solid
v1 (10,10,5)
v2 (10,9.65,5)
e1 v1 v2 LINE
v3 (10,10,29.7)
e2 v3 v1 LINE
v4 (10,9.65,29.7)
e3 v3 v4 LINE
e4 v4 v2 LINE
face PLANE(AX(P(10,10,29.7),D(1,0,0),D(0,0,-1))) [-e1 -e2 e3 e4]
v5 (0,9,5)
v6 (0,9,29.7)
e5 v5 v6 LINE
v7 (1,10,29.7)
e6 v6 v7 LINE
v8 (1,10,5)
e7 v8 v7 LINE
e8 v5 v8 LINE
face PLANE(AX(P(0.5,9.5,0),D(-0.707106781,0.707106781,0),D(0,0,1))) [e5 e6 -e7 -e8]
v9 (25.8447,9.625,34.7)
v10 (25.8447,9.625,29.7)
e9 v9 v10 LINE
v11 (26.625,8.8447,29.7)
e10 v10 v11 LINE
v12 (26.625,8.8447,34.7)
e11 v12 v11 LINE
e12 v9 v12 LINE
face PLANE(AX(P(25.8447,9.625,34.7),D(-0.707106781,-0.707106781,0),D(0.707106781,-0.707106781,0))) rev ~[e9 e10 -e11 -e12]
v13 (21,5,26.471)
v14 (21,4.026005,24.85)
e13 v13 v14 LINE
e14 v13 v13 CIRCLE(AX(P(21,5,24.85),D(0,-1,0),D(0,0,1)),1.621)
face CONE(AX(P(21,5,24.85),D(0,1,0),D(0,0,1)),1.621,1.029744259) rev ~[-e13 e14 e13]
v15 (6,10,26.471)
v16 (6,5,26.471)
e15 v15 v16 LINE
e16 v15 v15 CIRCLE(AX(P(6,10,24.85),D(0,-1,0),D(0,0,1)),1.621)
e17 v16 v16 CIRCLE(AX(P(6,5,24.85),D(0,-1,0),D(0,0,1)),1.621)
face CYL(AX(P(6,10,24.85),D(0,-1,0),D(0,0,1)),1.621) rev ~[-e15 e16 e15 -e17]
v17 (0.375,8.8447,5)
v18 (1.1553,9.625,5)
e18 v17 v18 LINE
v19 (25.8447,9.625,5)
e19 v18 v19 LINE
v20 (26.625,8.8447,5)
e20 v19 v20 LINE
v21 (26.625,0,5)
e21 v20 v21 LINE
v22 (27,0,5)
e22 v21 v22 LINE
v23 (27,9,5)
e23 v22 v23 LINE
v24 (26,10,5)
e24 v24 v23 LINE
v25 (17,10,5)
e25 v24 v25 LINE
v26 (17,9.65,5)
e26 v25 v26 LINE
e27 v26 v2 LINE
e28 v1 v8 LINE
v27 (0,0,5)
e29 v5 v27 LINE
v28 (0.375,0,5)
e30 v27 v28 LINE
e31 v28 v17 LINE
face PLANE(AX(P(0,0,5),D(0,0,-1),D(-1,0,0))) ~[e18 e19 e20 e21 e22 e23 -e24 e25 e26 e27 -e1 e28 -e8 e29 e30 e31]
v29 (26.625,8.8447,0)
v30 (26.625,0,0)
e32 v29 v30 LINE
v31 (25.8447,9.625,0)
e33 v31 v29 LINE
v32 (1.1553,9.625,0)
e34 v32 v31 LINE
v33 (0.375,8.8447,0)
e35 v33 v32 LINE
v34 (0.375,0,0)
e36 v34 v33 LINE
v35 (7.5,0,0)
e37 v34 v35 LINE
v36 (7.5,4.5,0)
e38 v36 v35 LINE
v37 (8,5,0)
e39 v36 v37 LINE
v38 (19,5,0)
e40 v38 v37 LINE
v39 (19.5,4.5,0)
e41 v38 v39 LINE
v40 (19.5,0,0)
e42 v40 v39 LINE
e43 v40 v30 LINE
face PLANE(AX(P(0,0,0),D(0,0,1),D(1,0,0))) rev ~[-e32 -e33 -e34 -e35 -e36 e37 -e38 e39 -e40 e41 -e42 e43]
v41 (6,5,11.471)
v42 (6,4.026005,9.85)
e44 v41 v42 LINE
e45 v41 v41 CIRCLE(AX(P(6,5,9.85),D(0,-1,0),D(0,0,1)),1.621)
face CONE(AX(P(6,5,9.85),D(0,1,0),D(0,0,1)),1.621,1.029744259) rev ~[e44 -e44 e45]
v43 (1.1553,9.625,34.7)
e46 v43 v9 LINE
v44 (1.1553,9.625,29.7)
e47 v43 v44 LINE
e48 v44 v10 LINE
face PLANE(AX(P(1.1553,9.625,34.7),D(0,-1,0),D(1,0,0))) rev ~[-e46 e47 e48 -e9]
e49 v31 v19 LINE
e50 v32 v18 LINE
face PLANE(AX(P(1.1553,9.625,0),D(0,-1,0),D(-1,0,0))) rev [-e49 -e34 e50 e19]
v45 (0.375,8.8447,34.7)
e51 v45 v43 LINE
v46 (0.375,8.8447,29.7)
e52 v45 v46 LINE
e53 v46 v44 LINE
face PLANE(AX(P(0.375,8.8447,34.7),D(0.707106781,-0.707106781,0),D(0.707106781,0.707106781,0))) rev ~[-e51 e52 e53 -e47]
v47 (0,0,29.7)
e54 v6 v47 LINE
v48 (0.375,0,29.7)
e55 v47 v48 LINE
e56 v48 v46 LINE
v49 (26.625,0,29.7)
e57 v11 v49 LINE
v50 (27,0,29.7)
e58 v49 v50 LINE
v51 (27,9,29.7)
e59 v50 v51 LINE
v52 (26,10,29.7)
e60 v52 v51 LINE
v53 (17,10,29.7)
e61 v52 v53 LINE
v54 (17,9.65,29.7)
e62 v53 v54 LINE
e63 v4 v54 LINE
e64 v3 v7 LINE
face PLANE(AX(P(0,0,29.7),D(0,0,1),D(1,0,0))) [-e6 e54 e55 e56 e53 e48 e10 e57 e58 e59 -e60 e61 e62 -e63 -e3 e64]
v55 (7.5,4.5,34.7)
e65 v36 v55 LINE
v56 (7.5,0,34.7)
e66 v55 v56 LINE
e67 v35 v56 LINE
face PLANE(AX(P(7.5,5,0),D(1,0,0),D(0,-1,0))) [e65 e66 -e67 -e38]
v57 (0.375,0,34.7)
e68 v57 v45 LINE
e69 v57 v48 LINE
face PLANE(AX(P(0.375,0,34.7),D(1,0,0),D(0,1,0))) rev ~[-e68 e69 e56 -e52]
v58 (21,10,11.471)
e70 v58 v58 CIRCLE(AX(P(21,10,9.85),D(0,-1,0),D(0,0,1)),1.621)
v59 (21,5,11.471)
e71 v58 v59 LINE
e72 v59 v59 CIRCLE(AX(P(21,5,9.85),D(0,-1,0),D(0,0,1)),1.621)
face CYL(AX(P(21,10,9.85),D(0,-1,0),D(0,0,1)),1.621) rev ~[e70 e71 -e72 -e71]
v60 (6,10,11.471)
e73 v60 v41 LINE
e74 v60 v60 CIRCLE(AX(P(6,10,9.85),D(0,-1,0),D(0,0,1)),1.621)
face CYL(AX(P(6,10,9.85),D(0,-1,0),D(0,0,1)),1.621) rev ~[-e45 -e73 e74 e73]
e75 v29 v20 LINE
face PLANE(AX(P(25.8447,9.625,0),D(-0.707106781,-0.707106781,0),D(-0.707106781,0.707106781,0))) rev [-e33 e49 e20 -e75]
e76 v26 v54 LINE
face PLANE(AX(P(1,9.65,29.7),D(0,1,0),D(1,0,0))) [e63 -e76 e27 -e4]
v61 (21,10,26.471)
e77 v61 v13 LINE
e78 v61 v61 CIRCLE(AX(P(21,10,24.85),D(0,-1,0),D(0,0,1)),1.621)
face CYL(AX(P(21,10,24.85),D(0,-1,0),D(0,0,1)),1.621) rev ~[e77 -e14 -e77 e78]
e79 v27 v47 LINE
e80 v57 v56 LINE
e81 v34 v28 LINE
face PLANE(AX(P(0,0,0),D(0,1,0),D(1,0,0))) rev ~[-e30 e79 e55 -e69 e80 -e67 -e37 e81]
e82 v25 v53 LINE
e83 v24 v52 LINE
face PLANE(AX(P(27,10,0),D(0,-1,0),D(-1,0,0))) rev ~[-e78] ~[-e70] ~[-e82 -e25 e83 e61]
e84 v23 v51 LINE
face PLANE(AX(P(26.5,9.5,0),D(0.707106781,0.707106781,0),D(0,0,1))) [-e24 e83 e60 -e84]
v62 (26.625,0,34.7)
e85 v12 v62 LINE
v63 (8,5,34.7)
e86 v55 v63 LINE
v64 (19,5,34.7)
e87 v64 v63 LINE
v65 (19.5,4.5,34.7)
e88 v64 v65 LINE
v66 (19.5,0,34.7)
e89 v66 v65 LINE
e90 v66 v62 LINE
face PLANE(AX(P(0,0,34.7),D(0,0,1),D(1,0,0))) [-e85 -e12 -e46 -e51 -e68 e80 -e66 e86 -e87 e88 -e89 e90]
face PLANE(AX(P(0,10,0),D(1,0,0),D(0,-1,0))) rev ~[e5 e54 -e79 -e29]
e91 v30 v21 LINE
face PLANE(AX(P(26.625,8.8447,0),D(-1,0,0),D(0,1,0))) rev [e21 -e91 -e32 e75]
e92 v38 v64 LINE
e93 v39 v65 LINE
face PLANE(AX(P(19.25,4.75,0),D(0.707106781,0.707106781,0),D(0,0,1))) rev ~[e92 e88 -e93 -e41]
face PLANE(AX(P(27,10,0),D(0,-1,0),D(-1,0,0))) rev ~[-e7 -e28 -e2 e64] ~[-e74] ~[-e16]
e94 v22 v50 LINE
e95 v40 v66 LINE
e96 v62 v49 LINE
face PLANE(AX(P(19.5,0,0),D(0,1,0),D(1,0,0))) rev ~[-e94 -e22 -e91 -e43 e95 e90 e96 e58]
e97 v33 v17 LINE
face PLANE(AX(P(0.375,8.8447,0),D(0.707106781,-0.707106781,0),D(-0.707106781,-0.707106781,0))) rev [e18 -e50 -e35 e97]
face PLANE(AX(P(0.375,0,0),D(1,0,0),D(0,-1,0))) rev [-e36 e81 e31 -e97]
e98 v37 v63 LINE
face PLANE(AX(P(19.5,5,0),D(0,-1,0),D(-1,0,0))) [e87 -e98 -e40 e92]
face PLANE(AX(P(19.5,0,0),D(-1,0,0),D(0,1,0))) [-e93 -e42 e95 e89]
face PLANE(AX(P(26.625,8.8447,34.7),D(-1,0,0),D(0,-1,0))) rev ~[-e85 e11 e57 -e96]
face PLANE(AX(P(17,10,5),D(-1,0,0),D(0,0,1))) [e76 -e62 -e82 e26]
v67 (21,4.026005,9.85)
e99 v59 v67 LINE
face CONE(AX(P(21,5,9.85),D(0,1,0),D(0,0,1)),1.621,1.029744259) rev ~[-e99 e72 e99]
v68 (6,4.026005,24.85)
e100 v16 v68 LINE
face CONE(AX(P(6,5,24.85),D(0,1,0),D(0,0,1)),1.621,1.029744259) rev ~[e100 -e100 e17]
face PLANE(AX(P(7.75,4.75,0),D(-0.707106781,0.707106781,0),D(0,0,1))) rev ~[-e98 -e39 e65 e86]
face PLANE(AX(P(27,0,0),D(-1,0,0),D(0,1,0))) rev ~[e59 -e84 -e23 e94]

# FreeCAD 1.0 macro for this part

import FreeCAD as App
import Part
import Sketcher
from FreeCAD import Vector
Q = App.Units.Quantity


def edges_at(feature, points):
    """Names of the edges that pass closest to the given points."""
    edges = feature.Shape.Edges
    near = lambda p: min(range(len(edges)), key=lambda i: edges[i].distToShape(Part.Vertex(*p))[0])
    return sorted({f"Edge{near(p) + 1}" for p in points})

doc = App.newDocument("Part")
body = doc.addObject("PartDesign::Body", "Body")

sketch1 = body.newObject("Sketcher::SketchObject", "Sketch")
sketch1.AttachmentSupport = (doc.getObject("XY_Plane"), [""])
sketch1.MapMode = "FlatFace"
sketch1.addGeometry(Part.LineSegment(Vector(0, 10, 0), Vector(0, 0, 0)), False)
sketch1.addGeometry(Part.LineSegment(Vector(0, 0, 0), Vector(8, 0, 0)), False)
sketch1.addGeometry(Part.LineSegment(Vector(8, 0, 0), Vector(8, 5, 0)), False)
sketch1.addGeometry(Part.LineSegment(Vector(8, 5, 0), Vector(20, 5, 0)), False)
sketch1.addGeometry(Part.LineSegment(Vector(20, 5, 0), Vector(20, 0, 0)), False)
sketch1.addGeometry(Part.LineSegment(Vector(20, 0, 0), Vector(27, 0, 0)), False)
sketch1.addGeometry(Part.LineSegment(Vector(27, 0, 0), Vector(27, 10, 0)), False)
sketch1.addGeometry(Part.LineSegment(Vector(27, 10, 0), Vector(0, 10, 0)), False)
sketch1.addConstraint(Sketcher.Constraint("Coincident", 0, 2, 1, 1))
sketch1.addConstraint(Sketcher.Constraint("Coincident", 1, 2, 2, 1))
sketch1.addConstraint(Sketcher.Constraint("Coincident", 2, 2, 3, 1))
sketch1.addConstraint(Sketcher.Constraint("Coincident", 3, 2, 4, 1))
sketch1.addConstraint(Sketcher.Constraint("Coincident", 4, 2, 5, 1))
sketch1.addConstraint(Sketcher.Constraint("Coincident", 5, 2, 6, 1))
sketch1.addConstraint(Sketcher.Constraint("Coincident", 6, 2, 7, 1))
sketch1.addConstraint(Sketcher.Constraint("Coincident", 7, 2, 0, 1))
sketch1.addConstraint(Sketcher.Constraint("Vertical", 0))
sketch1.addConstraint(Sketcher.Constraint("Horizontal", 1))
sketch1.addConstraint(Sketcher.Constraint("Vertical", 2))
sketch1.addConstraint(Sketcher.Constraint("Horizontal", 3))
sketch1.addConstraint(Sketcher.Constraint("Vertical", 4))
sketch1.addConstraint(Sketcher.Constraint("Horizontal", 5))
sketch1.addConstraint(Sketcher.Constraint("Vertical", 6))
sketch1.addConstraint(Sketcher.Constraint("Horizontal", 7))
sketch1.addConstraint(Sketcher.Constraint("Coincident", 0, 2, -1, 1))
sketch1.addConstraint(Sketcher.Constraint("PointOnObject", 4, 2, -1))
sketch1.addConstraint(Sketcher.Constraint("Equal", 1, 5))
sketch1.addConstraint(Sketcher.Constraint("DistanceX", 3, 1, 3, 2, Q("12 mm")))
sketch1.addConstraint(Sketcher.Constraint("DistanceX", 7, 2, 7, 1, Q("27 mm")))
sketch1.addConstraint(Sketcher.Constraint("DistanceY", 0, 2, 0, 1, Q("10 mm")))
sketch1.addConstraint(Sketcher.Constraint("DistanceY", 2, 1, 2, 2, Q("5 mm")))
pad1 = body.newObject("PartDesign::Pad", "Pad")
pad1.Profile = sketch1
pad1.Length = 34.7
doc.recompute()

chamfer = body.newObject("PartDesign::Chamfer", "Chamfer")
chamfer.Base = (pad1, edges_at(pad1, [(27, 10, 17.35), (0, 10, 17.35)]))
chamfer.Size = 1
doc.recompute()

chamfer2 = body.newObject("PartDesign::Chamfer", "Chamfer001")
chamfer2.Base = (chamfer, edges_at(chamfer, [(7.5, 5, 17.35), (19.5, 5, 17.35)]))
chamfer2.Size = 0.5

sketch2 = body.newObject("Sketcher::SketchObject", "Sketch001")
sketch2.AttachmentSupport = (doc.getObject("XZ_Plane"), [""])
sketch2.MapMode = "FlatFace"
sketch2.AttachmentOffset = App.Placement(Vector(0, 0, -10), App.Rotation())
sketch2.addGeometry(Part.Circle(Vector(21, 9.8, 0), Vector(0, 0, 1), 1.6), False)
sketch2.addGeometry(Part.Circle(Vector(21, 24.9, 0), Vector(0, 0, 1), 1.6), False)
sketch2.addGeometry(Part.Circle(Vector(6, 24.9, 0), Vector(0, 0, 1), 1.6), False)
sketch2.addGeometry(Part.Circle(Vector(6, 9.8, 0), Vector(0, 0, 1), 1.6), False)
sketch2.addConstraint(Sketcher.Constraint("Equal", 0, 1))
sketch2.addConstraint(Sketcher.Constraint("Equal", 1, 2))
sketch2.addConstraint(Sketcher.Constraint("Equal", 2, 3))
sketch2.addConstraint(Sketcher.Constraint("Horizontal", 1, 3, 2, 3))
sketch2.addConstraint(Sketcher.Constraint("Horizontal", 0, 3, 3, 3))
sketch2.addConstraint(Sketcher.Constraint("Vertical", 0, 3, 1, 3))
sketch2.addConstraint(Sketcher.Constraint("Vertical", 2, 3, 3, 3))
sketch2.addConstraint(Sketcher.Constraint("Diameter", 0, Q("3.242 mm")))
sketch2.addConstraint(Sketcher.Constraint("DistanceX", -1, 1, 0, 3, Q("21 mm")))
sketch2.addConstraint(Sketcher.Constraint("DistanceX", -1, 1, 2, 3, Q("6 mm")))
sketch2.addConstraint(Sketcher.Constraint("DistanceY", 0, 3, 1, 3, Q("15 mm")))
sketch2.addConstraint(Sketcher.Constraint("DistanceY", -1, 1, 0, 3, Q("9.85 mm")))
doc.recompute()
hole = body.newObject("PartDesign::Hole", "Hole")
hole.Profile = sketch2
hole.ThreadType = "None"
hole.Diameter = 3.242
hole.DepthType = "Dimension"
hole.Depth = 5
hole.DrillPoint = "Angled"
hole.DrillPointAngle = 118
hole.Reversed = True

sketch3 = body.newObject("Sketcher::SketchObject", "Sketch002")
sketch3.AttachmentSupport = (doc.getObject("XY_Plane"), [""])
sketch3.MapMode = "FlatFace"
sketch3.AttachmentOffset = App.Placement(Vector(0, 0, 34.7), App.Rotation())
sketch3.addGeometry(Part.LineSegment(Vector(1, 10, 0), Vector(0, 9, 0)), False)
sketch3.addGeometry(Part.LineSegment(Vector(0, 9, 0), Vector(0, 0, 0)), False)
sketch3.addGeometry(Part.LineSegment(Vector(0, 0, 0), Vector(0.38, 0, 0)), False)
sketch3.addGeometry(Part.LineSegment(Vector(0.38, 0, 0), Vector(0.38, 8.84, 0)), False)
sketch3.addGeometry(Part.LineSegment(Vector(0.38, 8.84, 0), Vector(1.16, 9.62, 0)), False)
sketch3.addGeometry(Part.LineSegment(Vector(1.16, 9.62, 0), Vector(25.84, 9.62, 0)), False)
sketch3.addGeometry(Part.LineSegment(Vector(25.84, 9.62, 0), Vector(26.62, 8.84, 0)), False)
sketch3.addGeometry(Part.LineSegment(Vector(26.62, 8.84, 0), Vector(26.62, 0, 0)), False)
sketch3.addGeometry(Part.LineSegment(Vector(26.62, 0, 0), Vector(27, 0, 0)), False)
sketch3.addGeometry(Part.LineSegment(Vector(27, 0, 0), Vector(27, 9, 0)), False)
sketch3.addGeometry(Part.LineSegment(Vector(27, 9, 0), Vector(26, 10, 0)), False)
sketch3.addGeometry(Part.LineSegment(Vector(26, 10, 0), Vector(1, 10, 0)), False)
sketch3.addConstraint(Sketcher.Constraint("Coincident", 0, 2, 1, 1))
sketch3.addConstraint(Sketcher.Constraint("Coincident", 1, 2, 2, 1))
sketch3.addConstraint(Sketcher.Constraint("Coincident", 2, 2, 3, 1))
sketch3.addConstraint(Sketcher.Constraint("Coincident", 3, 2, 4, 1))
sketch3.addConstraint(Sketcher.Constraint("Coincident", 4, 2, 5, 1))
sketch3.addConstraint(Sketcher.Constraint("Coincident", 5, 2, 6, 1))
sketch3.addConstraint(Sketcher.Constraint("Coincident", 6, 2, 7, 1))
sketch3.addConstraint(Sketcher.Constraint("Coincident", 7, 2, 8, 1))
sketch3.addConstraint(Sketcher.Constraint("Coincident", 8, 2, 9, 1))
sketch3.addConstraint(Sketcher.Constraint("Coincident", 9, 2, 10, 1))
sketch3.addConstraint(Sketcher.Constraint("Coincident", 10, 2, 11, 1))
sketch3.addConstraint(Sketcher.Constraint("Coincident", 11, 2, 0, 1))
sketch3.addConstraint(Sketcher.Constraint("Vertical", 1))
sketch3.addConstraint(Sketcher.Constraint("Horizontal", 2))
sketch3.addConstraint(Sketcher.Constraint("Vertical", 3))
sketch3.addConstraint(Sketcher.Constraint("Horizontal", 5))
sketch3.addConstraint(Sketcher.Constraint("Vertical", 7))
sketch3.addConstraint(Sketcher.Constraint("Horizontal", 8))
sketch3.addConstraint(Sketcher.Constraint("Vertical", 9))
sketch3.addConstraint(Sketcher.Constraint("Horizontal", 11))
sketch3.addConstraint(Sketcher.Constraint("Coincident", 1, 2, -1, 1))
sketch3.addConstraint(Sketcher.Constraint("PointOnObject", 7, 2, -1))
sketch3.addConstraint(Sketcher.Constraint("Parallel", 0, 4))
sketch3.addConstraint(Sketcher.Constraint("Perpendicular", 4, 6))
sketch3.addConstraint(Sketcher.Constraint("Parallel", 6, 10))
sketch3.addConstraint(Sketcher.Constraint("Horizontal", 3, 2, 6, 2))
sketch3.addConstraint(Sketcher.Constraint("Horizontal", 0, 2, 9, 2))
sketch3.addConstraint(Sketcher.Constraint("Equal", 2, 8))
sketch3.addConstraint(Sketcher.Constraint("Equal", 4, 6))
sketch3.addConstraint(Sketcher.Constraint("DistanceX", 2, 1, 2, 2, Q("0.375 mm")))
sketch3.addConstraint(Sketcher.Constraint("DistanceX", 11, 2, 11, 1, Q("25 mm")))
sketch3.addConstraint(Sketcher.Constraint("DistanceY", 1, 2, 1, 1, Q("9 mm")))
sketch3.addConstraint(Sketcher.Constraint("DistanceX", -1, 1, 8, 2, Q("27 mm")))
sketch3.addConstraint(Sketcher.Constraint("DistanceY", 5, 2, 10, 2, Q("0.375 mm")))
sketch3.addConstraint(Sketcher.Constraint("DistanceX", 5, 1, 5, 2, Q("24.6894 mm")))
pocket1 = body.newObject("PartDesign::Pocket", "Pocket")
pocket1.Profile = sketch3
pocket1.Length = 5
doc.recompute()

datumplane = body.newObject("PartDesign::Plane", "DatumPlane")
datumplane.AttachmentSupport = (doc.getObject("XY_Plane"), [""])
datumplane.MapMode = "FlatFace"
datumplane.AttachmentOffset = App.Placement(Vector(0, 0, 17.35), App.Rotation())
mirrored = body.newObject("PartDesign::Mirrored", "Mirrored")
mirrored.Originals = [pocket1]
mirrored.MirrorPlane = (datumplane, [""])
body.Tip = mirrored

sketch4 = body.newObject("Sketcher::SketchObject", "Sketch003")
sketch4.AttachmentSupport = (doc.getObject("XZ_Plane"), [""])
sketch4.MapMode = "FlatFace"
sketch4.AttachmentOffset = App.Placement(Vector(0, 0, -10), App.Rotation())
sketch4.addGeometry(Part.LineSegment(Vector(17, 30, 0), Vector(17, 5, 0)), False)
sketch4.addGeometry(Part.LineSegment(Vector(17, 5, 0), Vector(10, 5, 0)), False)
sketch4.addGeometry(Part.LineSegment(Vector(10, 5, 0), Vector(10, 30, 0)), False)
sketch4.addGeometry(Part.LineSegment(Vector(10, 30, 0), Vector(17, 30, 0)), False)
sketch4.addConstraint(Sketcher.Constraint("Coincident", 0, 2, 1, 1))
sketch4.addConstraint(Sketcher.Constraint("Coincident", 1, 2, 2, 1))
sketch4.addConstraint(Sketcher.Constraint("Coincident", 2, 2, 3, 1))
sketch4.addConstraint(Sketcher.Constraint("Coincident", 3, 2, 0, 1))
sketch4.addConstraint(Sketcher.Constraint("Vertical", 0))
sketch4.addConstraint(Sketcher.Constraint("Horizontal", 1))
sketch4.addConstraint(Sketcher.Constraint("Vertical", 2))
sketch4.addConstraint(Sketcher.Constraint("Horizontal", 3))
sketch4.addConstraint(Sketcher.Constraint("DistanceX", 1, 2, 1, 1, Q("7 mm")))
sketch4.addConstraint(Sketcher.Constraint("DistanceY", 0, 2, 0, 1, Q("24.7 mm")))
sketch4.addConstraint(Sketcher.Constraint("DistanceX", -1, 1, 0, 2, Q("17 mm")))
sketch4.addConstraint(Sketcher.Constraint("DistanceY", -1, 1, 0, 2, Q("5 mm")))
pocket2 = body.newObject("PartDesign::Pocket", "Pocket001")
pocket2.Profile = sketch4
pocket2.Length = 0.35
pocket2.Reversed = True

doc.recompute()
